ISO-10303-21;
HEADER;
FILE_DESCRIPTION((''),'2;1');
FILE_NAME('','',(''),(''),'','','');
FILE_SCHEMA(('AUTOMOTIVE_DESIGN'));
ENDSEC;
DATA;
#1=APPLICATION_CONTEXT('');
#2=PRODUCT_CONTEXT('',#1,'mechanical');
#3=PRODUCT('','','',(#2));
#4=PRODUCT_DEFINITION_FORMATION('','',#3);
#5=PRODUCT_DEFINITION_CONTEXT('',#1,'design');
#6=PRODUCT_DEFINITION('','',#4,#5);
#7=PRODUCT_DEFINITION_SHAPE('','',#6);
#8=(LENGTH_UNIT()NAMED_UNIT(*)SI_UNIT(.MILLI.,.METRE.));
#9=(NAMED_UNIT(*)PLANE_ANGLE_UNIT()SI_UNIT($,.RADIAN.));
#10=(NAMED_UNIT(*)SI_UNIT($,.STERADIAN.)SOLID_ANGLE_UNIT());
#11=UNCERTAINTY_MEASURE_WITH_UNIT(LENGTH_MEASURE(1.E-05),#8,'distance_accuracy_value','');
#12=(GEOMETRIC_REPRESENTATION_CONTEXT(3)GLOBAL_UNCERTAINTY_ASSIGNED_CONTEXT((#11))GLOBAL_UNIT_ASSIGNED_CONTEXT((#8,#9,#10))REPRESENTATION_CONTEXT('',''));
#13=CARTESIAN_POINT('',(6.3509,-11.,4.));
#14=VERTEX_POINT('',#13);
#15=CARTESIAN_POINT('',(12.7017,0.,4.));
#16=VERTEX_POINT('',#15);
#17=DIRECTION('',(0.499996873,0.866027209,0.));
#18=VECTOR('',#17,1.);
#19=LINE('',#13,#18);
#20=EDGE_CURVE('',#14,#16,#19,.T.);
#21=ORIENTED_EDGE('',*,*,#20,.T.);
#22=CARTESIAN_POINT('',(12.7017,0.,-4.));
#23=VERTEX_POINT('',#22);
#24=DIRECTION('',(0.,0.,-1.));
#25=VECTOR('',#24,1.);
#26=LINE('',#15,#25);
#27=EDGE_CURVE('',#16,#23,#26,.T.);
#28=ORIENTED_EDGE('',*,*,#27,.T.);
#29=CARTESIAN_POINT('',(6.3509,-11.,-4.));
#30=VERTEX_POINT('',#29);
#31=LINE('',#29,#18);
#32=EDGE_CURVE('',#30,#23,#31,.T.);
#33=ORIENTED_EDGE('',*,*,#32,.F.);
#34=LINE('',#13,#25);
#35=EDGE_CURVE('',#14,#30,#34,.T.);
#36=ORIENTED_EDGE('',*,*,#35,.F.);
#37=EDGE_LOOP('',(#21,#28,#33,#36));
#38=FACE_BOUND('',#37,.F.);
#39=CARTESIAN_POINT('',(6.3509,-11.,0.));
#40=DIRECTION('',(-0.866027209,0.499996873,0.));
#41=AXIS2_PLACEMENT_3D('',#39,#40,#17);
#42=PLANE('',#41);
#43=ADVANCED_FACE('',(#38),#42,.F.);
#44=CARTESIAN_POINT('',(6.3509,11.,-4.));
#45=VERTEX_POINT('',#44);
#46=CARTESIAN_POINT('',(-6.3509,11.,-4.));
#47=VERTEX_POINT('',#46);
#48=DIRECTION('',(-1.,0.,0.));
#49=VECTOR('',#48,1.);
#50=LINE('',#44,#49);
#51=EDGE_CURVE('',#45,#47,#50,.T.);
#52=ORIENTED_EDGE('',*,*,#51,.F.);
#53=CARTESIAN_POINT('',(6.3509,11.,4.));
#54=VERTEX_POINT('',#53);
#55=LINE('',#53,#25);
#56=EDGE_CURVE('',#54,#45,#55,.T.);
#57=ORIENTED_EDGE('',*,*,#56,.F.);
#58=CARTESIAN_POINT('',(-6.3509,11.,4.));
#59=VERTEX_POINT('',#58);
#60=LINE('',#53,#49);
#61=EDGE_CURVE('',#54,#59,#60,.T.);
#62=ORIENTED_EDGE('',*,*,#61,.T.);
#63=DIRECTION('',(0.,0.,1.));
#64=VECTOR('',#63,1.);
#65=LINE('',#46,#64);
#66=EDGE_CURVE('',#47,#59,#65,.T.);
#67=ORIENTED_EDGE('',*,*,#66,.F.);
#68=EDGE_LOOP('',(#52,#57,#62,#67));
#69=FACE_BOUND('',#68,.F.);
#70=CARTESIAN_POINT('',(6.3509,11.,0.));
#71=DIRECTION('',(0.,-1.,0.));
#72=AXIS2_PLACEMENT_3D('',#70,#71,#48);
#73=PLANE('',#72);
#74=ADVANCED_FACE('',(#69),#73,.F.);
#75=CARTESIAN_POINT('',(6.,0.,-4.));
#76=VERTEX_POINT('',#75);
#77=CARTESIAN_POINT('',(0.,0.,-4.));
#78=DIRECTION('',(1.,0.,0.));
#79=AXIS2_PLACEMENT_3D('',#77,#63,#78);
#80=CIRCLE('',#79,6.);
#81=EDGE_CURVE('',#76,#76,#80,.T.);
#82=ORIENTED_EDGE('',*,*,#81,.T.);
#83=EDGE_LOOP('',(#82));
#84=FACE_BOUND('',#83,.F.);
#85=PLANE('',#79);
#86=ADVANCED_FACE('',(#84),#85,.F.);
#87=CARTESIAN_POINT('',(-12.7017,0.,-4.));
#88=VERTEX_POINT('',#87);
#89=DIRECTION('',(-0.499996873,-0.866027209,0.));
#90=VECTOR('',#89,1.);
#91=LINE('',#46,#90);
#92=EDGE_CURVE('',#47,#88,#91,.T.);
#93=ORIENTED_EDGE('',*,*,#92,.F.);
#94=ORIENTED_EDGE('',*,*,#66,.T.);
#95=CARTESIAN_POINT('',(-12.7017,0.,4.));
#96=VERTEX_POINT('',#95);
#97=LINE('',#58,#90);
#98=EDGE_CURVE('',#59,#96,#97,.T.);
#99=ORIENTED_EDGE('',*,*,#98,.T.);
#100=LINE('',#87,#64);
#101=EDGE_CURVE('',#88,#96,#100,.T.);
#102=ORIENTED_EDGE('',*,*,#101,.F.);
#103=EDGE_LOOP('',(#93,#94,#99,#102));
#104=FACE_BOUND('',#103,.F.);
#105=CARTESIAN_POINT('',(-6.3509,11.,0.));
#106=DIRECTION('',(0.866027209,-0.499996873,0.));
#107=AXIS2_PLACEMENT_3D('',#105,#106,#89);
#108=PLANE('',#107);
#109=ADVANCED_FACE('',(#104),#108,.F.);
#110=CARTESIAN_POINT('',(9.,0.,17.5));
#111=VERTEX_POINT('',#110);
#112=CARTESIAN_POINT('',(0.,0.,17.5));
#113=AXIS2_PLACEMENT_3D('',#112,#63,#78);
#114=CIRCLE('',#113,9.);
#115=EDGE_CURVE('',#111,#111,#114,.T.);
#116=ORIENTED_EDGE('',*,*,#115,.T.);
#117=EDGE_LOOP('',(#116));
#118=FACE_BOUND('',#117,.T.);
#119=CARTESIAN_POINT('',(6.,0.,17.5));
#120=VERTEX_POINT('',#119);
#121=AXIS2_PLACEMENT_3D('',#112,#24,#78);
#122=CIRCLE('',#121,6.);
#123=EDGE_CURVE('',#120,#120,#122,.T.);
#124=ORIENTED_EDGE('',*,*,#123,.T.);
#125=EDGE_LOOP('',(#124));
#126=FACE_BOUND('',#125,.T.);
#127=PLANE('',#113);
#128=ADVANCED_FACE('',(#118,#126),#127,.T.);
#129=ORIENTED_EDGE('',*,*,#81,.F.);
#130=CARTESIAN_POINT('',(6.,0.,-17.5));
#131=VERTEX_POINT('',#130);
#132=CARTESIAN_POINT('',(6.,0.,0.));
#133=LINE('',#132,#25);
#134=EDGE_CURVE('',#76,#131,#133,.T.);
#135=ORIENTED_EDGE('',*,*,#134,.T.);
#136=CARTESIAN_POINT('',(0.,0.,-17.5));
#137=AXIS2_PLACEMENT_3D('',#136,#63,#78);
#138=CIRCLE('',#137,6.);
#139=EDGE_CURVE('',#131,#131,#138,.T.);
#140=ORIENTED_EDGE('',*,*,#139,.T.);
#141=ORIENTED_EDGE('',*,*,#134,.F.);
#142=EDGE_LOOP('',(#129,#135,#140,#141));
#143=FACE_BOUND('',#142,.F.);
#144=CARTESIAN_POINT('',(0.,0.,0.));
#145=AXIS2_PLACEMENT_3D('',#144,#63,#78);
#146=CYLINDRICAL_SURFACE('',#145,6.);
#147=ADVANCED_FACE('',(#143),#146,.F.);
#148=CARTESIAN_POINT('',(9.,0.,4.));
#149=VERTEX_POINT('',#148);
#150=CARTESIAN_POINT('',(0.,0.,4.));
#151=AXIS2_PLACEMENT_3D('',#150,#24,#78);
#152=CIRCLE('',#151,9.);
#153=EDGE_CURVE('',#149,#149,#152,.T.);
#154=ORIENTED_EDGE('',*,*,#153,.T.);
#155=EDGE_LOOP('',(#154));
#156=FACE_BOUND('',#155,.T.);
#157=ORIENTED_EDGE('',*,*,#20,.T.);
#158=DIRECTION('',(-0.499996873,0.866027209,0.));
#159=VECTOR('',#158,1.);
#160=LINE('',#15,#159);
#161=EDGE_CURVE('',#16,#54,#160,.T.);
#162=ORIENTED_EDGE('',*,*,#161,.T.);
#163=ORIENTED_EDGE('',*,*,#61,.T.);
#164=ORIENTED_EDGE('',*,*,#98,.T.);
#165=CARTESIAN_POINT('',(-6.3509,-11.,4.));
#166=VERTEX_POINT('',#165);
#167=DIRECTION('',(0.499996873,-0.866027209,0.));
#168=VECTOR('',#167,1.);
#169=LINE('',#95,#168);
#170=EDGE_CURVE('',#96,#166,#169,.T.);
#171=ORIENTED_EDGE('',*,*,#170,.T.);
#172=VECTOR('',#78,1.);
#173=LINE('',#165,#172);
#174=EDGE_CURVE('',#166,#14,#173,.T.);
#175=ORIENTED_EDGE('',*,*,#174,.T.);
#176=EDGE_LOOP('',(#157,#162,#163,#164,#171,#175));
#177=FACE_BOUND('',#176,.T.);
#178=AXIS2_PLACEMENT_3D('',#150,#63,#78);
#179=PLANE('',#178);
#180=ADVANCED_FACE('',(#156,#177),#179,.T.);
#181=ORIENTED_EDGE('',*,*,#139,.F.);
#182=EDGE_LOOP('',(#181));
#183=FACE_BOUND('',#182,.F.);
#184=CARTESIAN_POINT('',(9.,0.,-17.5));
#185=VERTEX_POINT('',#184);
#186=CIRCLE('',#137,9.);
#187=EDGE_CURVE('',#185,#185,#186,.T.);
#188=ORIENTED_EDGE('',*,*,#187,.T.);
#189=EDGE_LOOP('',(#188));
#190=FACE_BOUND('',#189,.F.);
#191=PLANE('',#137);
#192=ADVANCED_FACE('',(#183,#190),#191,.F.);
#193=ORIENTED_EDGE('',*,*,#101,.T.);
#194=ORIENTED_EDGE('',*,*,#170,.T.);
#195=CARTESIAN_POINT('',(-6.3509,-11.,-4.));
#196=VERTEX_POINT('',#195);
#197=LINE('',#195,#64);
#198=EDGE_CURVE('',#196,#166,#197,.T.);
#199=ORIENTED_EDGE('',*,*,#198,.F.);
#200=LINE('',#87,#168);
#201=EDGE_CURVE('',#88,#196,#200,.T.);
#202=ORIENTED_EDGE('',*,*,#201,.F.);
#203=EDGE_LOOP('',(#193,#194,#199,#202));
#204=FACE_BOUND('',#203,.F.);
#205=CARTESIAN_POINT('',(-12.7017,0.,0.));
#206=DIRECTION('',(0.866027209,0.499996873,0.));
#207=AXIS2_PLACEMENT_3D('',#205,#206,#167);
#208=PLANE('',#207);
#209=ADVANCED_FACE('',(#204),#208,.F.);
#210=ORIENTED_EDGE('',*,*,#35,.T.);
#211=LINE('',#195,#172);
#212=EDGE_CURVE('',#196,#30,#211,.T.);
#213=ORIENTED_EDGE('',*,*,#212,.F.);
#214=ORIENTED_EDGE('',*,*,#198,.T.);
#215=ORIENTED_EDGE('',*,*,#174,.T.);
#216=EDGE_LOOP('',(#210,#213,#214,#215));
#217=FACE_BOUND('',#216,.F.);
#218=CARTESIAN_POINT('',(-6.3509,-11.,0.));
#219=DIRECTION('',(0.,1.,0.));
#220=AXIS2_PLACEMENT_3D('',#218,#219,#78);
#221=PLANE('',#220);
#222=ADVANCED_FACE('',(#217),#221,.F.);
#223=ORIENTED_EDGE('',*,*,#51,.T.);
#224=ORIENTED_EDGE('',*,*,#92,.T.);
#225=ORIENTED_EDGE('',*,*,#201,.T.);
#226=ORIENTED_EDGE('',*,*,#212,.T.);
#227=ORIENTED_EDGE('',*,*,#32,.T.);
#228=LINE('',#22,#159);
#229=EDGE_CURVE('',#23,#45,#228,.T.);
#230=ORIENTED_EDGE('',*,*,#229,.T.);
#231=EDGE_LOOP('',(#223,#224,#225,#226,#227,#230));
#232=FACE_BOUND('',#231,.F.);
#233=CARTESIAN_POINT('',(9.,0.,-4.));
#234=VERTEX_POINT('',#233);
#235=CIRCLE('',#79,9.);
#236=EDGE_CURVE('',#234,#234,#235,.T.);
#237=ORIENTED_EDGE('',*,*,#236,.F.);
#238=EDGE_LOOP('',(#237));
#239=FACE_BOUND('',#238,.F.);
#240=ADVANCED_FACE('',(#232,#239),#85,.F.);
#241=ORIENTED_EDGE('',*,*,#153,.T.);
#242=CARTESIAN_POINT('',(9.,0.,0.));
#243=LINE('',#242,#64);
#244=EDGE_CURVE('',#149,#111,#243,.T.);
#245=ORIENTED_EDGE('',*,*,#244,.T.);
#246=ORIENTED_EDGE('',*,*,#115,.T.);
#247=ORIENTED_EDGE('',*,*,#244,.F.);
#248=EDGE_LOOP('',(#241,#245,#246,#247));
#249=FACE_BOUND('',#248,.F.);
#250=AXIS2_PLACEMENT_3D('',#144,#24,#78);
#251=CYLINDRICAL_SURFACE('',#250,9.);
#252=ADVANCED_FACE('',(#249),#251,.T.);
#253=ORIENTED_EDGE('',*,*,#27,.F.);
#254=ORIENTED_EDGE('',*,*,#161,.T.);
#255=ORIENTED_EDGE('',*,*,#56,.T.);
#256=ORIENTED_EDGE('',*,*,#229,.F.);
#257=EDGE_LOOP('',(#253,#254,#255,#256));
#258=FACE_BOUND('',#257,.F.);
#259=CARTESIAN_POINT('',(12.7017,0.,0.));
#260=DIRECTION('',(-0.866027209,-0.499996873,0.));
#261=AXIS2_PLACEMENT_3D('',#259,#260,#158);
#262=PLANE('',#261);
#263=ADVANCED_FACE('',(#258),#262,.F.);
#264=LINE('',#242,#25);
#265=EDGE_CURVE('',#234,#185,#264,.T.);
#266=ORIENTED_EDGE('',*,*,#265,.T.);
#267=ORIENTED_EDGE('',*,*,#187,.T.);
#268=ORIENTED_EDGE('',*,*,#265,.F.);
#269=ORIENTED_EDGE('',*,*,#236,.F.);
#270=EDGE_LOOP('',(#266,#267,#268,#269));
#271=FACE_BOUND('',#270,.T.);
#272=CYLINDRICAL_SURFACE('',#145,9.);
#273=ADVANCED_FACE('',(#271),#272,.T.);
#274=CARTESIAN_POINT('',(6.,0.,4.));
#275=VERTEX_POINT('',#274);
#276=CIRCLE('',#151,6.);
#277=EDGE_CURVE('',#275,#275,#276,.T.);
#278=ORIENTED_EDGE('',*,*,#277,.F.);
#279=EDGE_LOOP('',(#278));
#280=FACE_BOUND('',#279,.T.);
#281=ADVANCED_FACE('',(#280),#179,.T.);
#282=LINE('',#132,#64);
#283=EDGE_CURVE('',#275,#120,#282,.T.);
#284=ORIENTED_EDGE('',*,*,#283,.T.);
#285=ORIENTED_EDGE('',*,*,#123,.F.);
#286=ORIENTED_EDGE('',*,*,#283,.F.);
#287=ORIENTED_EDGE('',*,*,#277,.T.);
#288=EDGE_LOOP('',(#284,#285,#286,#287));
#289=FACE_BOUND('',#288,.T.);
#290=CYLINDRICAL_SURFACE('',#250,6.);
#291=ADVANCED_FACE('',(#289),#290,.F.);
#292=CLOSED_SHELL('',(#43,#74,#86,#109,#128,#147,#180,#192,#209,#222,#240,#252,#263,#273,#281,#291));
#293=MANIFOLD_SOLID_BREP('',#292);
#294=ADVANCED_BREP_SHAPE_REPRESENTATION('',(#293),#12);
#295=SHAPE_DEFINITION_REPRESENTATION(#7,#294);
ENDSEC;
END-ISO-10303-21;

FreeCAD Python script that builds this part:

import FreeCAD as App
import Part
import Sketcher

V = App.Vector
Q = App.Units.Quantity

doc = App.newDocument("Part")
body = doc.addObject("PartDesign::Body", "Body")

# Sketch on XY plane
sketch1 = body.newObject("Sketcher::SketchObject", "Sketch")
sketch1.AttachmentSupport = (doc.getObject("XY_Plane"), [""])
sketch1.MapMode = "FlatFace"
sketch1.addGeometry(Part.Circle(V(0, 0, 0), V(0, 0, 1), 9), False)
sketch1.addConstraint([
    Sketcher.Constraint("Coincident", 0, 3, -1, 1),
    Sketcher.Constraint("Diameter", 0, 18.0),
])
pad1 = body.newObject("PartDesign::Pad", "Pad")
pad1.Profile = sketch1
pad1.Length = 35
pad1.Midplane = True

# Sketch on XY plane
sketch2 = body.newObject("Sketcher::SketchObject", "Sketch001")
sketch2.AttachmentSupport = (doc.getObject("XY_Plane"), [""])
sketch2.MapMode = "FlatFace"
sketch2.addGeometry(Part.Circle(V(0, 0, 0), V(0, 0, 1), 6), False)
sketch2.addConstraint([
    Sketcher.Constraint("Coincident", 0, 3, -1, 1),
    Sketcher.Constraint("Diameter", 0, 12.0),
])
pocket1 = body.newObject("PartDesign::Pocket", "Pocket")
pocket1.Profile = sketch2
pocket1.Type = "ThroughAll"
pocket1.Midplane = True

# Sketch on XY plane
sketch3 = body.newObject("Sketcher::SketchObject", "Sketch002")
sketch3.AttachmentSupport = (doc.getObject("XY_Plane"), [""])
sketch3.MapMode = "FlatFace"
sketch3.addGeometry([
    Part.LineSegment(V(13, 0, 0), V(6, 11, 0)),  # 0
    Part.LineSegment(V(6, 11, 0), V(-6, 11, 0)),  # 1
    Part.LineSegment(V(-6, 11, 0), V(-13, 0, 0)),  # 2
    Part.LineSegment(V(-13, 0, 0), V(-6, -11, 0)),  # 3
    Part.LineSegment(V(-6, -11, 0), V(6, -11, 0)),  # 4
    Part.LineSegment(V(6, -11, 0), V(13, 0, 0)),  # 5
], False)
sketch3.addConstraint([
    Sketcher.Constraint("Coincident", 0, 2, 1, 1),
    Sketcher.Constraint("Coincident", 1, 2, 2, 1),
    Sketcher.Constraint("Coincident", 2, 2, 3, 1),
    Sketcher.Constraint("Coincident", 3, 2, 4, 1),
    Sketcher.Constraint("Coincident", 4, 2, 5, 1),
    Sketcher.Constraint("Coincident", 5, 2, 0, 1),
    Sketcher.Constraint("Horizontal", 1),
    Sketcher.Constraint("Horizontal", 4),
    Sketcher.Constraint("Symmetric", 0, 2, 3, 2, -1, 1),
    Sketcher.Constraint("Symmetric", 2, 2, 5, 2, -1, 1),
    Sketcher.Constraint("PointOnObject", 2, 2, -1),
    Sketcher.Constraint("Parallel", 2, 5),
    Sketcher.Constraint("Vertical", 1, 2, 3, 2),
    Sketcher.Constraint("Angle", 0, Q("119.9998 deg")),
    Sketcher.Constraint("DistanceY", -1, 1, 0, 2, 11.0),
    Sketcher.Constraint("DistanceX", 1, 2, 1, 1, 12.7018),
])
pad2 = body.newObject("PartDesign::Pad", "Pad001")
pad2.Profile = sketch3
pad2.Length = 8
pad2.Midplane = True

doc.recompute()
